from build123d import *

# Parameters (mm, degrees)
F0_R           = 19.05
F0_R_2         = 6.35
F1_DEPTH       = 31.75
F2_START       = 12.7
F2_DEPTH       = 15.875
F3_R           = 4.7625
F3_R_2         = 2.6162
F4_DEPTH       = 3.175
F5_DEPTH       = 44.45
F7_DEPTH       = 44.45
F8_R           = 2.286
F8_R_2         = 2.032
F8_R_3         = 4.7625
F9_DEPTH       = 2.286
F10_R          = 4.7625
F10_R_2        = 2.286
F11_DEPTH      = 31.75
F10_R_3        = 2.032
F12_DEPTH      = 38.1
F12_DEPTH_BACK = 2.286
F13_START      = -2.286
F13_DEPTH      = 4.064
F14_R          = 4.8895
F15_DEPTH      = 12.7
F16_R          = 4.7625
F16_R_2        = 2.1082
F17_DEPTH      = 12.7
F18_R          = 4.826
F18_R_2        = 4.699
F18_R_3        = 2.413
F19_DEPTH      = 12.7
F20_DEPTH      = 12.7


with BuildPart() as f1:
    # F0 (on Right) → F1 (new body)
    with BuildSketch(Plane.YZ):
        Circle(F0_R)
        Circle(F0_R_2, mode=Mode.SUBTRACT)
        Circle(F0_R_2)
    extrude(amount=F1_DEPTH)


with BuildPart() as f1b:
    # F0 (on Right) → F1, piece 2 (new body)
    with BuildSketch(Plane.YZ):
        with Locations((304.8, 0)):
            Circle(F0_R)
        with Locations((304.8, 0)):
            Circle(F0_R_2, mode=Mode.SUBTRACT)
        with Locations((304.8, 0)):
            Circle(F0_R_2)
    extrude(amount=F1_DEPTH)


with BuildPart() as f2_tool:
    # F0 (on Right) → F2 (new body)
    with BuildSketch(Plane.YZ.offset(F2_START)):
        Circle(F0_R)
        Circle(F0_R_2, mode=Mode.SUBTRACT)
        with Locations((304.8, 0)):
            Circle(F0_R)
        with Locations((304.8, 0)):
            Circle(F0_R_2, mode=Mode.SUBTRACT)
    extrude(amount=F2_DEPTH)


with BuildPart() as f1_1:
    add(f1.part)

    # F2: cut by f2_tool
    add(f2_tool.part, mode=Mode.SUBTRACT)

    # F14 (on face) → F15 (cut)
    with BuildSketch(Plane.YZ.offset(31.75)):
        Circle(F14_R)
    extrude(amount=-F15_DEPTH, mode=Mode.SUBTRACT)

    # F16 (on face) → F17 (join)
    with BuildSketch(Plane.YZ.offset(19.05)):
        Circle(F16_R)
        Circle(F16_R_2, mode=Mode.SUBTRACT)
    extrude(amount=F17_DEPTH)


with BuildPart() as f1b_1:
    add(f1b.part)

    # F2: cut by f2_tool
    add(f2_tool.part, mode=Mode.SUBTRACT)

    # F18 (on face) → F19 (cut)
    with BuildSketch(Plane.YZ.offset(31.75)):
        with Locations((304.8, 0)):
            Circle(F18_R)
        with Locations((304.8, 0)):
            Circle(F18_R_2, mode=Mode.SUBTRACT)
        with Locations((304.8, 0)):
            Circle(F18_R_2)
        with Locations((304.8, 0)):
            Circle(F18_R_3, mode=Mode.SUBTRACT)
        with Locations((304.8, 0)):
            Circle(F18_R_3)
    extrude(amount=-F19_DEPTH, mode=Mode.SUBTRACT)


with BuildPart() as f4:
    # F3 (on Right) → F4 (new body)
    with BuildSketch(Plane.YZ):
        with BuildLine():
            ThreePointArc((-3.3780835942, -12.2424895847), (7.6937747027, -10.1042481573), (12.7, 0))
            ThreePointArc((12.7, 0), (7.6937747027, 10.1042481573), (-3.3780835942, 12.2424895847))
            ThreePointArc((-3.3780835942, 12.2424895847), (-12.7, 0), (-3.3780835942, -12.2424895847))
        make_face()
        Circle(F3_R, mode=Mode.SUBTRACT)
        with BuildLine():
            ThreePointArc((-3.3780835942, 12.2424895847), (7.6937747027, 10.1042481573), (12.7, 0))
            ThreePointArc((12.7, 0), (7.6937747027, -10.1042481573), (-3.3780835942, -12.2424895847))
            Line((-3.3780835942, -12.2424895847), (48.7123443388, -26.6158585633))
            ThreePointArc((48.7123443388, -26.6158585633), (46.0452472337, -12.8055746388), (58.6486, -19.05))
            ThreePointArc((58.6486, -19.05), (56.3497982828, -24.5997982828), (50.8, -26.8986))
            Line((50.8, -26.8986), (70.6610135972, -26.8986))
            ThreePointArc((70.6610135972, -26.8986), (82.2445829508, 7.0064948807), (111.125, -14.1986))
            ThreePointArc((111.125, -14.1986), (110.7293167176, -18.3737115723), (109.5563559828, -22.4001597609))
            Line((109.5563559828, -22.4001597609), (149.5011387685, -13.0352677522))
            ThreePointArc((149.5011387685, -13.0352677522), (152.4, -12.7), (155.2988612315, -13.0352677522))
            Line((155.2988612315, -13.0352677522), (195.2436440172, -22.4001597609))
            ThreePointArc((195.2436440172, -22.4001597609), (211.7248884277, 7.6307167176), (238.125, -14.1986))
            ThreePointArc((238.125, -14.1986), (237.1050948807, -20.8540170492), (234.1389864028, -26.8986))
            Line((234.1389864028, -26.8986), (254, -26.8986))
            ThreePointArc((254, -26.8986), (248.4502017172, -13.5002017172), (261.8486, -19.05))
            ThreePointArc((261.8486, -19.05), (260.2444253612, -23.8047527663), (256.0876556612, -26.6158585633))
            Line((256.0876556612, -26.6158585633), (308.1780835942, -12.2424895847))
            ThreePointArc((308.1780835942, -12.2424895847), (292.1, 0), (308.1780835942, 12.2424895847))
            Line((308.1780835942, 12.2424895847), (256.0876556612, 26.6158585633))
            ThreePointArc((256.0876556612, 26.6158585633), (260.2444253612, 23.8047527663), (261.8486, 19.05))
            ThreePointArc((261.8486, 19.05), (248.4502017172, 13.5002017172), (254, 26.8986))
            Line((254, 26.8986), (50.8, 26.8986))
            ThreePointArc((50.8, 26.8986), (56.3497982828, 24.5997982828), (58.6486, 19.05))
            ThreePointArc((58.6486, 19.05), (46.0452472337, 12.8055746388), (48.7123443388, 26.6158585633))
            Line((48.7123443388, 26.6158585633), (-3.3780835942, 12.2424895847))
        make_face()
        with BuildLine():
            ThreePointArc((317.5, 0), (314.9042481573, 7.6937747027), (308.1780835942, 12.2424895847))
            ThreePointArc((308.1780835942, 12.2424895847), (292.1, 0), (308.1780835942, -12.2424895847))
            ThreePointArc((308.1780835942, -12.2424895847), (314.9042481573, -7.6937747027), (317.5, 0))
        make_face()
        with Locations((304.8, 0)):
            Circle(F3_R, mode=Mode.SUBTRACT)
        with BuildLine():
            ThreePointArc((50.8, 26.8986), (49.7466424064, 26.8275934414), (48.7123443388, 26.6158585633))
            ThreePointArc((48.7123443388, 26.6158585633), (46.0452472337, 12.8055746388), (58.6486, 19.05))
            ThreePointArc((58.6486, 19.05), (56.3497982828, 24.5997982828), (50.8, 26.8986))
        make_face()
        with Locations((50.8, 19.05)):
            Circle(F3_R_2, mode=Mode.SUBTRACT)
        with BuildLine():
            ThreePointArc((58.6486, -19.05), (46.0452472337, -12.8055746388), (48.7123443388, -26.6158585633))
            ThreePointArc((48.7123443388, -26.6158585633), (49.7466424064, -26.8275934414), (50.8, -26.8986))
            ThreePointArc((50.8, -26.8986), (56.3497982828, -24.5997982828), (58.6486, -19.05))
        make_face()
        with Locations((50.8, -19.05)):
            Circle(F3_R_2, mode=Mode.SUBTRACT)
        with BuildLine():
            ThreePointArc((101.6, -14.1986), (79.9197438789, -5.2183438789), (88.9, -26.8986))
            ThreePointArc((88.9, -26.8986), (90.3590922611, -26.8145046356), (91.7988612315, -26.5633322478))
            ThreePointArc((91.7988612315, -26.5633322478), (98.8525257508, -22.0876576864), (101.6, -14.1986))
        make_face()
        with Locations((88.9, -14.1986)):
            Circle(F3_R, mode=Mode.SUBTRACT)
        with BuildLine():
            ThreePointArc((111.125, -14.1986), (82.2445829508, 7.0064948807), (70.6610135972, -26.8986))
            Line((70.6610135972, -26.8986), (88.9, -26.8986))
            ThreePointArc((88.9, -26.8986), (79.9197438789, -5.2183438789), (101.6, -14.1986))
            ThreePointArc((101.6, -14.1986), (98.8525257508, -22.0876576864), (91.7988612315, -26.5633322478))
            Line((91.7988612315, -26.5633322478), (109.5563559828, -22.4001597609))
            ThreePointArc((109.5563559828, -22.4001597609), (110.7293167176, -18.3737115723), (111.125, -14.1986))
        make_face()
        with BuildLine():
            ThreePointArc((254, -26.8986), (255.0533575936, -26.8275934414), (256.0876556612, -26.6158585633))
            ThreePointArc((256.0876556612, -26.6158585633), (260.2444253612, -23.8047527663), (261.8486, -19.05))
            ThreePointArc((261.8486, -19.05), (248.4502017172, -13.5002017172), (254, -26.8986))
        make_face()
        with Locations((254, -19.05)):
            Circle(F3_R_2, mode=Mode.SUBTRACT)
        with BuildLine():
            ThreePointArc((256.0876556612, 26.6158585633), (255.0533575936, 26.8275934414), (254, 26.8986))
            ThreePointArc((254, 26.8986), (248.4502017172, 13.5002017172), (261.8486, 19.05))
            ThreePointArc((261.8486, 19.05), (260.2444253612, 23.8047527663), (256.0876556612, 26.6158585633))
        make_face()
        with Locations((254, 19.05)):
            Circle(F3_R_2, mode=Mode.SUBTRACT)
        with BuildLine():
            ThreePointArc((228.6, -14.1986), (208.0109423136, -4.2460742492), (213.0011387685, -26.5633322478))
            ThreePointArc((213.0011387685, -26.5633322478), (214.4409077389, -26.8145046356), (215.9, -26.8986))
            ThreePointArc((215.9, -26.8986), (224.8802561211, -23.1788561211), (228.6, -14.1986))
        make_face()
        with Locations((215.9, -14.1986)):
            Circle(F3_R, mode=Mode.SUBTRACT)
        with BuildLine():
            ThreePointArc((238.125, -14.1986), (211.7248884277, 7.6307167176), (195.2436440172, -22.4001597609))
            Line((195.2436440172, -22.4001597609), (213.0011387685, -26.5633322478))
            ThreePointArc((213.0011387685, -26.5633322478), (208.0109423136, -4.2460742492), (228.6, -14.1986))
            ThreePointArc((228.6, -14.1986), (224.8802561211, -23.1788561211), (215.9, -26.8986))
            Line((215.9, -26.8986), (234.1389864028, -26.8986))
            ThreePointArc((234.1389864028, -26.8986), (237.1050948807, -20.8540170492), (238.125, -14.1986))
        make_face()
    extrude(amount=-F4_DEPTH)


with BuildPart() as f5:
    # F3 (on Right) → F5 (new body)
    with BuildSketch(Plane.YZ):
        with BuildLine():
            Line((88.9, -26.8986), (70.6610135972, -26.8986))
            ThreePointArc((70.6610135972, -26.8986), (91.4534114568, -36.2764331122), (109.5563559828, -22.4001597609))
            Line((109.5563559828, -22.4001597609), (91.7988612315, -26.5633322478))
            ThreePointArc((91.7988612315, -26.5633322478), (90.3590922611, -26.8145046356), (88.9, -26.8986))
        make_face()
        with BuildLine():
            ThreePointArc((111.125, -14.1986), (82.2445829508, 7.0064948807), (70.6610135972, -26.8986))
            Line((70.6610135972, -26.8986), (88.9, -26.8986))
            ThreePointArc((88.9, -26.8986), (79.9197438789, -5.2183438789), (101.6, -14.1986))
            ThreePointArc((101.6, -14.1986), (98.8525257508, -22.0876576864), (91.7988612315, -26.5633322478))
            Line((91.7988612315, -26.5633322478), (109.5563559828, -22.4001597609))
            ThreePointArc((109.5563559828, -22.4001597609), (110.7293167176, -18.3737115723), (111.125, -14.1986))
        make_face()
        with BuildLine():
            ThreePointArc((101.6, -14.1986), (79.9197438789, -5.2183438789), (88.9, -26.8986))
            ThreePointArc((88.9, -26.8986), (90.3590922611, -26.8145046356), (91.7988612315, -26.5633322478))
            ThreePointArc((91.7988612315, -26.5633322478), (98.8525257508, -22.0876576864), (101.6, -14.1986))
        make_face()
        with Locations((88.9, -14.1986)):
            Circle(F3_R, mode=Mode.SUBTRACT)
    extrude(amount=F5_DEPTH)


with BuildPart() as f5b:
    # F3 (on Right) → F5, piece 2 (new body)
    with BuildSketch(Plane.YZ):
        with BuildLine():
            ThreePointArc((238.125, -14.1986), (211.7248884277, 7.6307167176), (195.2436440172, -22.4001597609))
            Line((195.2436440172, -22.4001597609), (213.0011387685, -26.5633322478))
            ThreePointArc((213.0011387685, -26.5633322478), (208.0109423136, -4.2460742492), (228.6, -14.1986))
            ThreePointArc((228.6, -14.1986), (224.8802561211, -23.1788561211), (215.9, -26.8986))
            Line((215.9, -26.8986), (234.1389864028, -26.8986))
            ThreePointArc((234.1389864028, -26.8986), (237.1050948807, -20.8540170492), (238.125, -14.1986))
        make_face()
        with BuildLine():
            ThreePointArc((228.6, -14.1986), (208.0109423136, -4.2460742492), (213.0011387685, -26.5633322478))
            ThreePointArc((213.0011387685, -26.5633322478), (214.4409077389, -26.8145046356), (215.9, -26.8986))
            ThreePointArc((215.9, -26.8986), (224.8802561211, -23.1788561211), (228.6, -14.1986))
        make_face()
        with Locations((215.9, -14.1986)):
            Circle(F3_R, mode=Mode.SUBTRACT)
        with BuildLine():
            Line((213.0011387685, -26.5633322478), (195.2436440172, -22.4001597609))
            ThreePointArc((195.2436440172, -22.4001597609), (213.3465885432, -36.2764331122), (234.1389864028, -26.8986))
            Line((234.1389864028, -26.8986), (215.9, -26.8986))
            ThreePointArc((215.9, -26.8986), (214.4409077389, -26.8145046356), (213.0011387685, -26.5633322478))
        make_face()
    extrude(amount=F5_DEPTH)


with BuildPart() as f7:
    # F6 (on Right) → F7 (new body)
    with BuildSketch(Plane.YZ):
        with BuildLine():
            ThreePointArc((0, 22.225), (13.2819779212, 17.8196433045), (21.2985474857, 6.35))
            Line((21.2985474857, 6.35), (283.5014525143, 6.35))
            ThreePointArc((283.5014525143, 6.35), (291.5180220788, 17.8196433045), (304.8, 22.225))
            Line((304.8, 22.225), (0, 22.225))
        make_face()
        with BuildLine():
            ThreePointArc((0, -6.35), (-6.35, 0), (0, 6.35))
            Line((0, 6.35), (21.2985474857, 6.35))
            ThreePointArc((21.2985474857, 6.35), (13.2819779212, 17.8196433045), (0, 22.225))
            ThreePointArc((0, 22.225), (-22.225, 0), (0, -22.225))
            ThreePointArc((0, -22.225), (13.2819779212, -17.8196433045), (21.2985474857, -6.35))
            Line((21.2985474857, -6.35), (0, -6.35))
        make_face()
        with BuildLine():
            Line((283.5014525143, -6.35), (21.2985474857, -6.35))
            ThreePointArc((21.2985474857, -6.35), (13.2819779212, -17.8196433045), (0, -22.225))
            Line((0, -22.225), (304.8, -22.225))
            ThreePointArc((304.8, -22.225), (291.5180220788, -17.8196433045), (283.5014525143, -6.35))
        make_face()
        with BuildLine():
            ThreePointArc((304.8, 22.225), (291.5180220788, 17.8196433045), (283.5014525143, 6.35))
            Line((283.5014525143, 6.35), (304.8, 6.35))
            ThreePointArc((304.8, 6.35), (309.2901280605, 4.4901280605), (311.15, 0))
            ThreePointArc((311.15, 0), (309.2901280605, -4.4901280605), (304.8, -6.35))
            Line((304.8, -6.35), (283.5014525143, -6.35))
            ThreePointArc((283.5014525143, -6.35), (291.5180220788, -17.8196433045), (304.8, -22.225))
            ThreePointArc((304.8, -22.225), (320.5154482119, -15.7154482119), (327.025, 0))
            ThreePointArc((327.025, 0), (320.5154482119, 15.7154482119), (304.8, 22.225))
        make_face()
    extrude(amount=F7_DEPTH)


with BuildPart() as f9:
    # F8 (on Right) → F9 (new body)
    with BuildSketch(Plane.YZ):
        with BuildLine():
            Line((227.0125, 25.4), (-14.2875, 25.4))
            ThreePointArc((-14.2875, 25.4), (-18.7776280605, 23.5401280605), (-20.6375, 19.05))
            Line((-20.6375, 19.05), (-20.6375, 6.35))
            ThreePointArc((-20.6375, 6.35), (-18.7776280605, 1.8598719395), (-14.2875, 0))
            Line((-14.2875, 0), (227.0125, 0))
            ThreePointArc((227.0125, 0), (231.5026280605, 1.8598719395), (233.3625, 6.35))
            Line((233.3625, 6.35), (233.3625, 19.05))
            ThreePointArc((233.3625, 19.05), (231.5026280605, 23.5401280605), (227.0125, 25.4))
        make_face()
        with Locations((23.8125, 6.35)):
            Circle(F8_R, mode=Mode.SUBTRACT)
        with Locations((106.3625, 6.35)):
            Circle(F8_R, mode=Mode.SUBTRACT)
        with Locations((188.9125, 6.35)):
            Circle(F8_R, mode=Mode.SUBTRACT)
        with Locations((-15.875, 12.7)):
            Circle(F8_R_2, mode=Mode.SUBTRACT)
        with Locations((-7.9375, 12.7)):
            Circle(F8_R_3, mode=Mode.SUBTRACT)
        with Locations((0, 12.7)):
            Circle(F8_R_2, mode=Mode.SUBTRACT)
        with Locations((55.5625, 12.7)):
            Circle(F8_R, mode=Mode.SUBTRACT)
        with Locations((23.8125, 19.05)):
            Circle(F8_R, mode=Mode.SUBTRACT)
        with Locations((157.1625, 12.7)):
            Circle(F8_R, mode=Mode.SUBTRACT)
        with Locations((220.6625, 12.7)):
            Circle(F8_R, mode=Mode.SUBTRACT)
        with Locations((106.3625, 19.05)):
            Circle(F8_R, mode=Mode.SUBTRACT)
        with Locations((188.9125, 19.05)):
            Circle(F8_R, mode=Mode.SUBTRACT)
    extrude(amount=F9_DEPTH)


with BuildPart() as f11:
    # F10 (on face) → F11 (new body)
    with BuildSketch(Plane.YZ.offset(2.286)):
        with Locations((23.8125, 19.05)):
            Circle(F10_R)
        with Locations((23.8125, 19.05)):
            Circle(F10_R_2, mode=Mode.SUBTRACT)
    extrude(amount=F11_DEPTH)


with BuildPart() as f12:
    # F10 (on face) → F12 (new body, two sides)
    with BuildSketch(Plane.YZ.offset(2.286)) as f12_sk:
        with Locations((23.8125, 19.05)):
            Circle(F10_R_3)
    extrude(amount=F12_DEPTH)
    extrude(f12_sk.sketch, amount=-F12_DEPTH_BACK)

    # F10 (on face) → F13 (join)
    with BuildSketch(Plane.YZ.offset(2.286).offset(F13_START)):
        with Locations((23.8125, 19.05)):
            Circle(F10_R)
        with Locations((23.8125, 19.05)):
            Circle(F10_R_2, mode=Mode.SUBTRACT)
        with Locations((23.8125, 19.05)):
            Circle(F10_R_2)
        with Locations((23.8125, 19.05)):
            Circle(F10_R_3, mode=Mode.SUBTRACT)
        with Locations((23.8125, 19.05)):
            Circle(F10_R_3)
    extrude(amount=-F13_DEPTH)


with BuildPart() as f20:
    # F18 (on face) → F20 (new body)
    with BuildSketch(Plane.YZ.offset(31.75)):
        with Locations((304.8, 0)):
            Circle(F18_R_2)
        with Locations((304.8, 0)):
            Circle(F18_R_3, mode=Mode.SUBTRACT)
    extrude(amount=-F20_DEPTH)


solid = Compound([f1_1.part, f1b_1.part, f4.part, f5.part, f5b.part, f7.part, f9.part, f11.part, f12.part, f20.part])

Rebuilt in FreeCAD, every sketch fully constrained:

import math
import FreeCAD as App
import Part
import Sketcher

V = App.Vector
Q = App.Units.Quantity

doc = App.newDocument("Part")
body = doc.addObject("PartDesign::Body", "Body")

# Sketch on YZ plane
sketch1 = body.newObject("Sketcher::SketchObject", "Sketch")
sketch1.AttachmentSupport = (doc.getObject("YZ_Plane"), [""])
sketch1.MapMode = "FlatFace"
sketch1.addGeometry(Part.Circle(V(0, 0, 0), V(0, 0, 1), 19), False)
sketch1.addConstraint([
    Sketcher.Constraint("Coincident", 0, 3, -1, 1),
    Sketcher.Constraint("Diameter", 0, Q("1.5 in")),
])
pad1 = body.newObject("PartDesign::Pad", "Pad")
pad1.Profile = sketch1
pad1.Length = Q("1.25 in")
body2 = doc.addObject("PartDesign::Body", "Body001")

# Sketch on YZ plane
sketch2 = body2.newObject("Sketcher::SketchObject", "Sketch001")
sketch2.AttachmentSupport = (doc.getObject("YZ_Plane001"), [""])
sketch2.MapMode = "FlatFace"
sketch2.addGeometry(Part.Circle(V(305, 0, 0), V(0, 0, 1), 19), False)
sketch2.addConstraint([
    Sketcher.Constraint("PointOnObject", 0, 3, -1),
    Sketcher.Constraint("Diameter", 0, Q("1.5 in")),
    Sketcher.Constraint("DistanceX", -1, 1, 0, 3, Q("12 in")),
])
pad2 = body2.newObject("PartDesign::Pad", "Pad001")
pad2.Profile = sketch2
pad2.Length = Q("1.25 in")
body3 = doc.addObject("PartDesign::Body", "Body002")
body3.AllowCompound = True

# Sketch on YZ plane
sketch3 = body3.newObject("Sketcher::SketchObject", "Sketch002")
sketch3.AttachmentSupport = (doc.getObject("YZ_Plane002"), [""])
sketch3.MapMode = "FlatFace"
sketch3.AttachmentOffset = App.Placement(V(0, 0, 0.5 * 25.4), App.Rotation())
sketch3.addGeometry([
    Part.Circle(V(0, 0, 0), V(0, 0, 1), 19),
    Part.Circle(V(0, 0, 0), V(0, 0, 1), 6),
    Part.Circle(V(305, 0, 0), V(0, 0, 1), 19),
    Part.Circle(V(305, 0, 0), V(0, 0, 1), 6),
], False)
sketch3.addConstraint([
    Sketcher.Constraint("Coincident", 0, 3, -1, 1),
    Sketcher.Constraint("Coincident", 1, 3, -1, 1),
    Sketcher.Constraint("Coincident", 3, 3, 2, 3),
    Sketcher.Constraint("Equal", 0, 2),
    Sketcher.Constraint("Equal", 1, 3),
    Sketcher.Constraint("PointOnObject", 2, 3, -1),
    Sketcher.Constraint("Diameter", 0, Q("1.5 in")),
    Sketcher.Constraint("Diameter", 1, Q("0.5 in")),
    Sketcher.Constraint("DistanceX", -1, 1, 2, 3, Q("12 in")),
])
pad3 = body3.newObject("PartDesign::Pad", "Pad002")
pad3.Profile = sketch3
pad3.Length = Q("0.625 in")
doc.recompute()

body4 = doc.addObject("PartDesign::Body", "Body003")
body4.BaseFeature = body3
boolean = body.newObject("PartDesign::Boolean", "Boolean")
boolean.Type = "Cut"
boolean.addObjects([body4])
doc.recompute()

# Sketch on YZ plane
sketch4 = body.newObject("Sketcher::SketchObject", "Sketch003")
sketch4.AttachmentSupport = (doc.getObject("YZ_Plane"), [""])
sketch4.MapMode = "FlatFace"
sketch4.AttachmentOffset = App.Placement(V(0, 0, 1.25 * 25.4), App.Rotation())
sketch4.addGeometry(Part.Circle(V(0, 0, 0), V(0, 0, 1), 4.9), False)
sketch4.addConstraint([
    Sketcher.Constraint("Coincident", 0, 3, -1, 1),
    Sketcher.Constraint("Diameter", 0, Q("0.385 in")),
])
pocket1 = body.newObject("PartDesign::Pocket", "Pocket")
pocket1.Profile = sketch4
pocket1.Length = Q("0.5 in")

# Sketch on YZ plane
sketch5 = body.newObject("Sketcher::SketchObject", "Sketch004")
sketch5.AttachmentSupport = (doc.getObject("YZ_Plane"), [""])
sketch5.MapMode = "FlatFace"
sketch5.AttachmentOffset = App.Placement(V(0, 0, 0.75 * 25.4), App.Rotation())
sketch5.addGeometry([
    Part.Circle(V(0, 0, 0), V(0, 0, 1), 4.8),
    Part.Circle(V(0, 0, 0), V(0, 0, 1), 2.1),
], False)
sketch5.addConstraint([
    Sketcher.Constraint("Coincident", 0, 3, -1, 1),
    Sketcher.Constraint("Coincident", 1, 3, -1, 1),
    Sketcher.Constraint("Diameter", 0, Q("0.375 in")),
    Sketcher.Constraint("Diameter", 1, Q("0.166 in")),
])
pad4 = body.newObject("PartDesign::Pad", "Pad003")
pad4.Profile = sketch5
pad4.Length = Q("0.5 in")
doc.recompute()

boolean2 = body2.newObject("PartDesign::Boolean", "Boolean001")
boolean2.Type = "Cut"
boolean2.addObjects([body3])

# Sketch on YZ plane
sketch6 = body2.newObject("Sketcher::SketchObject", "Sketch005")
sketch6.AttachmentSupport = (doc.getObject("YZ_Plane001"), [""])
sketch6.MapMode = "FlatFace"
sketch6.AttachmentOffset = App.Placement(V(0, 0, 1.25 * 25.4), App.Rotation())
sketch6.addGeometry(Part.Circle(V(304.8, 0, 0), V(0, 0, 1), 4.8), False)
sketch6.addConstraint([
    Sketcher.Constraint("PointOnObject", 0, 3, -1),
    Sketcher.Constraint("Diameter", 0, Q("0.38 in")),
    Sketcher.Constraint("DistanceX", -1, 1, 0, 3, Q("12 in")),
])
pocket2 = body2.newObject("PartDesign::Pocket", "Pocket001")
pocket2.Profile = sketch6
pocket2.Length = Q("0.5 in")
body5 = doc.addObject("PartDesign::Body", "Body004")

# Sketch on YZ plane
sketch7 = body5.newObject("Sketcher::SketchObject", "Sketch006")
sketch7.AttachmentSupport = (doc.getObject("YZ_Plane004"), [""])
sketch7.MapMode = "FlatFace"
sketch7.addGeometry([
    Part.ArcOfCircle(Part.Circle(V(0, 0, 0), V(0, 0, 1), 12.7), math.radians(105), math.radians(255)),  # 0
    Part.LineSegment(V(-3.4, -12.2, 0), V(48.7, -26.6, 0)),  # 1
    Part.ArcOfCircle(Part.Circle(V(50.8, -19.1, 0), V(0, 0, 1), 7.8), math.radians(-105.43), math.radians(-90)),  # 2
    Part.LineSegment(V(50.8, -26.9, 0), V(88.9, -26.9, 0)),  # 3
    Part.ArcOfCircle(Part.Circle(V(88.9, -14.2, 0), V(0, 0, 1), 12.7), math.radians(-90), math.radians(-76.81)),  # 4
    Part.LineSegment(V(91.8, -26.6, 0), V(109.6, -22.4, 0)),  # 5
    Part.LineSegment(V(109.6, -22.4, 0), V(149.5, -13, 0)),  # 6
    Part.ArcOfCircle(Part.Circle(V(152.4, -25.4, 0), V(0, 0, 1), 12.7), math.radians(77), math.radians(103)),  # 7
    Part.LineSegment(V(155.3, -13, 0), V(195.2, -22.4, 0)),  # 8
    Part.LineSegment(V(195.2, -22.4, 0), V(213, -26.6, 0)),  # 9
    Part.ArcOfCircle(Part.Circle(V(215.9, -14.2, 0), V(0, 0, 1), 12.7), math.radians(-103.19), math.radians(-90)),  # 10
    Part.LineSegment(V(215.9, -26.9, 0), V(254, -26.9, 0)),  # 11
    Part.ArcOfCircle(Part.Circle(V(254, -19, 0), V(0, 0, 1), 7.8), math.radians(-90), math.radians(-74.57)),  # 12
    Part.LineSegment(V(256.1, -26.6, 0), V(308.2, -12.2, 0)),  # 13
    Part.ArcOfCircle(Part.Circle(V(304.8, 0, 0), V(0, 0, 1), 12.7), math.radians(-75), math.radians(75)),  # 14
    Part.LineSegment(V(308.2, 12.2, 0), V(256.1, 26.6, 0)),  # 15
    Part.ArcOfCircle(Part.Circle(V(254, 19, 0), V(0, 0, 1), 7.8), math.radians(74.57), math.radians(90)),  # 16
    Part.LineSegment(V(254, 26.9, 0), V(50.8, 26.9, 0)),  # 17
    Part.ArcOfCircle(Part.Circle(V(50.8, 19, 0), V(0, 0, 1), 7.8), math.radians(90), math.radians(105.43)),  # 18
    Part.LineSegment(V(48.7, 26.6, 0), V(-3.4, 12.2, 0)),  # 19
    Part.Circle(V(50.8, -19.1, 0), V(0, 0, 1), 2.6),  # 20
    Part.Circle(V(88.9, -14.2, 0), V(0, 0, 1), 4.8),  # 21
    Part.Circle(V(0, 0, 0), V(0, 0, 1), 4.8),  # 22
    Part.Circle(V(254, -19.1, 0), V(0, 0, 1), 2.6),  # 23
    Part.Circle(V(304.8, 0, 0), V(0, 0, 1), 4.8),  # 24
    Part.Circle(V(50.8, 19.1, 0), V(0, 0, 1), 2.6),  # 25
    Part.Circle(V(254, 19.1, 0), V(0, 0, 1), 2.6),  # 26
    Part.Circle(V(215.9, -14.2, 0), V(0, 0, 1), 4.8),  # 27
], False)
sketch7.addConstraint([
    Sketcher.Constraint("Tangent", 0, 2, 1, 1),
    Sketcher.Constraint("Tangent", 1, 2, 2, 1),
    Sketcher.Constraint("Tangent", 2, 2, 3, 1),
    Sketcher.Constraint("Tangent", 3, 2, 4, 1),
    Sketcher.Constraint("Tangent", 4, 2, 5, 1),
    Sketcher.Constraint("Coincident", 5, 2, 6, 1),
    Sketcher.Constraint("Tangent", 6, 2, 7, 2),
    Sketcher.Constraint("Tangent", 7, 1, 8, 1),
    Sketcher.Constraint("Coincident", 8, 2, 9, 1),
    Sketcher.Constraint("Tangent", 9, 2, 10, 1),
    Sketcher.Constraint("Tangent", 10, 2, 11, 1),
    Sketcher.Constraint("Tangent", 11, 2, 12, 1),
    Sketcher.Constraint("Tangent", 12, 2, 13, 1),
    Sketcher.Constraint("Tangent", 13, 2, 14, 1),
    Sketcher.Constraint("Tangent", 14, 2, 15, 1),
    Sketcher.Constraint("Tangent", 15, 2, 16, 1),
    Sketcher.Constraint("Tangent", 16, 2, 17, 1),
    Sketcher.Constraint("Tangent", 17, 2, 18, 1),
    Sketcher.Constraint("Tangent", 18, 2, 19, 1),
    Sketcher.Constraint("Tangent", 19, 2, 0, 1),
    Sketcher.Constraint("Horizontal", 3),
    Sketcher.Constraint("Horizontal", 11),
    Sketcher.Constraint("Horizontal", 17),
    Sketcher.Constraint("Coincident", 0, 3, -1, 1),
    Sketcher.Constraint("Coincident", 22, 3, -1, 1),
    Sketcher.Constraint("Coincident", 20, 3, 2, 3),
    Sketcher.Constraint("Coincident", 21, 3, 4, 3),
    Sketcher.Constraint("Coincident", 23, 3, 12, 3),
    Sketcher.Constraint("Coincident", 24, 3, 14, 3),
    Sketcher.Constraint("Coincident", 25, 3, 18, 3),
    Sketcher.Constraint("Coincident", 26, 3, 16, 3),
    Sketcher.Constraint("Coincident", 27, 3, 10, 3),
    Sketcher.Constraint("Equal", 0, 4),
    Sketcher.Constraint("Equal", 4, 7),
    Sketcher.Constraint("Equal", 7, 10),
    Sketcher.Constraint("Equal", 2, 12),
    Sketcher.Constraint("Equal", 10, 14),
    Sketcher.Constraint("Equal", 12, 16),
    Sketcher.Constraint("Equal", 16, 18),
    Sketcher.Constraint("Equal", 21, 22),
    Sketcher.Constraint("Equal", 20, 23),
    Sketcher.Constraint("Equal", 22, 24),
    Sketcher.Constraint("Equal", 23, 25),
    Sketcher.Constraint("Equal", 25, 26),
    Sketcher.Constraint("Equal", 24, 27),
    Sketcher.Constraint("Symmetric", 12, 3, 16, 3, -1),
    Sketcher.Constraint("Symmetric", 2, 3, 18, 3, -1),
    Sketcher.Constraint("PointOnObject", 14, 3, -1),
    Sketcher.Constraint("Parallel", 5, 6),
    Sketcher.Constraint("Parallel", 8, 9),
    Sketcher.Constraint("Parallel", 1, 15),
    Sketcher.Constraint("Horizontal", 6, 2, 7, 1),
    Sketcher.Constraint("Horizontal", 5, 2, 8, 2),
    Sketcher.Constraint("Equal", 3, 11),
    Sketcher.Constraint("Radius", 0, Q("0.5 in")),
    Sketcher.Constraint("DistanceX", 17, 2, 17, 1, Q("8 in")),
    Sketcher.Constraint("Diameter", 20, Q("0.206 in")),
    Sketcher.Constraint("Diameter", 21, Q("0.375 in")),
    Sketcher.Constraint("DistanceX", 3, 1, 3, 2, Q("1.5 in")),
    Sketcher.Constraint("DistanceX", -1, 1, 2, 3, Q("2 in")),
    Sketcher.Constraint("DistanceY", 7, 3, -1, 1, Q("1 in")),
    Sketcher.Constraint("Radius", 2, Q("0.309 in")),
    Sketcher.Constraint("DistanceY", 12, 3, 16, 3, Q("1.5 in")),
    Sketcher.Constraint("Distance", 6, Q("41.027879 mm")),
])
pad5 = body5.newObject("PartDesign::Pad", "Pad004")
pad5.Profile = sketch7
pad5.Length = Q("0.125 in")
pad5.Reversed = True
body6 = doc.addObject("PartDesign::Body", "Body005")

# Sketch on YZ plane
sketch8 = body6.newObject("Sketcher::SketchObject", "Sketch007")
sketch8.AttachmentSupport = (doc.getObject("YZ_Plane005"), [""])
sketch8.MapMode = "FlatFace"
sketch8.addGeometry([
    Part.ArcOfCircle(Part.Circle(V(88.9, -14.2, 0), V(0, 0, 1), 22.2), math.radians(-145), math.radians(-22)),
    Part.ArcOfCircle(Part.Circle(V(88.9, -14.2, 0), V(0, 0, 1), 22.2), math.radians(-22), math.radians(0)),
    Part.ArcOfCircle(Part.Circle(V(88.9, -14.2, 0), V(0, 0, 1), 22.2), math.radians(0), math.radians(215)),
    Part.Circle(V(88.9, -14.2, 0), V(0, 0, 1), 4.8),
], False)
sketch8.addConstraint([
    Sketcher.Constraint("Tangent", 0, 2, 1, 1),
    Sketcher.Constraint("Tangent", 1, 2, 2, 1),
    Sketcher.Constraint("Tangent", 2, 2, 0, 1),
    Sketcher.Constraint("Coincident", 3, 3, 0, 3),
    Sketcher.Constraint("Horizontal", 3, 3, 1, 2),
    Sketcher.Constraint("Diameter", 3, Q("0.375 in")),
    Sketcher.Constraint("Radius", 0, Q("0.875 in")),
    Sketcher.Constraint("DistanceX", -1, 1, 0, 3, Q("3.5 in")),
    Sketcher.Constraint("DistanceY", 2, 2, 1, 3, Q("0.5 in")),
    Sketcher.Constraint("DistanceY", 0, 3, -1, 1, Q("0.559 in")),
    Sketcher.Constraint("DistanceY", 0, 2, -1, 1, Q("22.40016 mm")),
])
pad6 = body6.newObject("PartDesign::Pad", "Pad005")
pad6.Profile = sketch8
pad6.Length = Q("1.75 in")
body7 = doc.addObject("PartDesign::Body", "Body006")

# Sketch on YZ plane
sketch9 = body7.newObject("Sketcher::SketchObject", "Sketch008")
sketch9.AttachmentSupport = (doc.getObject("YZ_Plane006"), [""])
sketch9.MapMode = "FlatFace"
sketch9.addGeometry([
    Part.ArcOfCircle(Part.Circle(V(215.9, -14.2, 0), V(0, 0, 1), 22.2), math.radians(0), math.radians(202)),
    Part.ArcOfCircle(Part.Circle(V(215.9, -14.2, 0), V(0, 0, 1), 22.2), math.radians(-158), math.radians(-35)),
    Part.ArcOfCircle(Part.Circle(V(215.9, -14.2, 0), V(0, 0, 1), 22.2), math.radians(-35), math.radians(0)),
    Part.Circle(V(215.9, -14.2, 0), V(0, 0, 1), 4.8),
], False)
sketch9.addConstraint([
    Sketcher.Constraint("Tangent", 0, 2, 1, 1),
    Sketcher.Constraint("Tangent", 1, 2, 2, 1),
    Sketcher.Constraint("Tangent", 2, 2, 0, 1),
    Sketcher.Constraint("Coincident", 3, 3, 0, 3),
    Sketcher.Constraint("Horizontal", 3, 3, 2, 2),
    Sketcher.Constraint("Diameter", 3, Q("0.375 in")),
    Sketcher.Constraint("Radius", 0, Q("0.875 in")),
    Sketcher.Constraint("DistanceX", -1, 1, 0, 3, Q("8.5 in")),
    Sketcher.Constraint("DistanceY", 1, 2, 0, 3, Q("0.5 in")),
    Sketcher.Constraint("DistanceY", 0, 3, -1, 1, Q("0.559 in")),
    Sketcher.Constraint("DistanceY", 0, 2, -1, 1, Q("22.40016 mm")),
])
pad7 = body7.newObject("PartDesign::Pad", "Pad006")
pad7.Profile = sketch9
pad7.Length = Q("1.75 in")
body8 = doc.addObject("PartDesign::Body", "Body007")

# Sketch on YZ plane
sketch10 = body8.newObject("Sketcher::SketchObject", "Sketch009")
sketch10.AttachmentSupport = (doc.getObject("YZ_Plane007"), [""])
sketch10.MapMode = "FlatFace"
sketch10.addGeometry([
    Part.LineSegment(V(305, 22, 0), V(0, 22, 0)),  # 0
    Part.ArcOfCircle(Part.Circle(V(0, 0, 0), V(0, 0, 1), 22), math.radians(90), math.radians(270)),  # 1
    Part.LineSegment(V(0, -22, 0), V(305, -22, 0)),  # 2
    Part.ArcOfCircle(Part.Circle(V(305, 0, 0), V(0, 0, 1), 22), math.radians(-90), math.radians(0)),  # 3
    Part.ArcOfCircle(Part.Circle(V(305, 0, 0), V(0, 0, 1), 22), math.radians(0), math.radians(90)),  # 4
    Part.ArcOfCircle(Part.Circle(V(0, 0, 0), V(0, 0, 1), 6), math.radians(90), math.radians(270)),  # 5
    Part.LineSegment(V(0, 6, 0), V(305, 6, 0)),  # 6
    Part.ArcOfCircle(Part.Circle(V(305, 0, 0), V(0, 0, 1), 6), math.radians(0), math.radians(90)),  # 7
    Part.ArcOfCircle(Part.Circle(V(305, 0, 0), V(0, 0, 1), 6), math.radians(-90), math.radians(0)),  # 8
    Part.LineSegment(V(305, -6, 0), V(0, -6, 0)),  # 9
], False)
sketch10.addConstraint([
    Sketcher.Constraint("Tangent", 0, 2, 1, 1),
    Sketcher.Constraint("Tangent", 1, 2, 2, 1),
    Sketcher.Constraint("Tangent", 2, 2, 3, 1),
    Sketcher.Constraint("Tangent", 3, 2, 4, 1),
    Sketcher.Constraint("Tangent", 4, 2, 0, 1),
    Sketcher.Constraint("Tangent", 5, 1, 6, 1),
    Sketcher.Constraint("Tangent", 6, 2, 7, 2),
    Sketcher.Constraint("Tangent", 7, 1, 8, 2),
    Sketcher.Constraint("Tangent", 8, 1, 9, 1),
    Sketcher.Constraint("Tangent", 9, 2, 5, 2),
    Sketcher.Constraint("Horizontal", 0),
    Sketcher.Constraint("Horizontal", 2),
    Sketcher.Constraint("Horizontal", 6),
    Sketcher.Constraint("Horizontal", 9),
    Sketcher.Constraint("Coincident", 1, 3, -1, 1),
    Sketcher.Constraint("Coincident", 5, 3, -1, 1),
    Sketcher.Constraint("Coincident", 7, 3, 3, 3),
    Sketcher.Constraint("Equal", 1, 3),
    Sketcher.Constraint("PointOnObject", 3, 2, -1),
    Sketcher.Constraint("PointOnObject", 7, 1, -1),
    Sketcher.Constraint("DistanceX", 0, 2, 0, 1, Q("12 in")),
    Sketcher.Constraint("Radius", 5, Q("0.25 in")),
    Sketcher.Constraint("Radius", 1, Q("0.875 in")),
])
pad8 = body8.newObject("PartDesign::Pad", "Pad007")
pad8.Profile = sketch10
pad8.Length = Q("1.75 in")
body9 = doc.addObject("PartDesign::Body", "Body008")

# Sketch on YZ plane
sketch11 = body9.newObject("Sketcher::SketchObject", "Sketch010")
sketch11.AttachmentSupport = (doc.getObject("YZ_Plane008"), [""])
sketch11.MapMode = "FlatFace"
sketch11.addGeometry([
    Part.LineSegment(V(227, 25.4, 0), V(-14.3, 25.4, 0)),  # 0
    Part.ArcOfCircle(Part.Circle(V(-14.3, 19.1, 0), V(0, 0, 1), 6.3), math.radians(90), math.radians(180)),  # 1
    Part.LineSegment(V(-20.6, 19.1, 0), V(-20.6, 6.3, 0)),  # 2
    Part.ArcOfCircle(Part.Circle(V(-14.3, 6.3, 0), V(0, 0, 1), 6.3), math.radians(180), math.radians(270)),  # 3
    Part.LineSegment(V(-14.3, 0, 0), V(227, 0, 0)),  # 4
    Part.ArcOfCircle(Part.Circle(V(227, 6.3, 0), V(0, 0, 1), 6.3), math.radians(-90), math.radians(0)),  # 5
    Part.LineSegment(V(233.4, 6.3, 0), V(233.4, 19.1, 0)),  # 6
    Part.ArcOfCircle(Part.Circle(V(227, 19.1, 0), V(0, 0, 1), 6.3), math.radians(0), math.radians(90)),  # 7
    Part.Circle(V(23.8, 6.3, 0), V(0, 0, 1), 2.3),  # 8
    Part.Circle(V(-15.9, 12.7, 0), V(0, 0, 1), 2),  # 9
    Part.Circle(V(-7.9, 12.7, 0), V(0, 0, 1), 4.8),  # 10
    Part.Circle(V(0, 12.7, 0), V(0, 0, 1), 2),  # 11
    Part.Circle(V(55.6, 12.7, 0), V(0, 0, 1), 2.3),  # 12
    Part.Circle(V(106.4, 6.3, 0), V(0, 0, 1), 2.3),  # 13
    Part.Circle(V(188.9, 6.3, 0), V(0, 0, 1), 2.3),  # 14
    Part.Circle(V(157.2, 12.7, 0), V(0, 0, 1), 2.3),  # 15
    Part.Circle(V(220.7, 12.7, 0), V(0, 0, 1), 2.3),  # 16
    Part.Circle(V(23.8, 19.1, 0), V(0, 0, 1), 2.3),  # 17
    Part.Circle(V(106.4, 19.1, 0), V(0, 0, 1), 2.3),  # 18
    Part.Circle(V(188.9, 19.1, 0), V(0, 0, 1), 2.3),  # 19
], False)
sketch11.addConstraint([
    Sketcher.Constraint("Tangent", 0, 2, 1, 1),
    Sketcher.Constraint("Tangent", 1, 2, 2, 1),
    Sketcher.Constraint("Tangent", 2, 2, 3, 1),
    Sketcher.Constraint("Tangent", 3, 2, 4, 1),
    Sketcher.Constraint("Tangent", 4, 2, 5, 1),
    Sketcher.Constraint("Tangent", 5, 2, 6, 1),
    Sketcher.Constraint("Tangent", 6, 2, 7, 1),
    Sketcher.Constraint("Tangent", 7, 2, 0, 1),
    Sketcher.Constraint("Horizontal", 0),
    Sketcher.Constraint("Vertical", 2),
    Sketcher.Constraint("Horizontal", 4),
    Sketcher.Constraint("Vertical", 6),
    Sketcher.Constraint("Equal", 1, 3),
    Sketcher.Constraint("Equal", 3, 5),
    Sketcher.Constraint("Equal", 5, 7),
    Sketcher.Constraint("Equal", 9, 11),
    Sketcher.Constraint("Equal", 8, 12),
    Sketcher.Constraint("Equal", 12, 13),
    Sketcher.Constraint("Equal", 13, 14),
    Sketcher.Constraint("Equal", 14, 15),
    Sketcher.Constraint("Equal", 15, 16),
    Sketcher.Constraint("Equal", 16, 17),
    Sketcher.Constraint("Equal", 17, 18),
    Sketcher.Constraint("Equal", 18, 19),
    Sketcher.Constraint("PointOnObject", 11, 3, -2),
    Sketcher.Constraint("PointOnObject", 3, 2, -1),
    Sketcher.Constraint("Horizontal", 5, 3, 8, 3),
    Sketcher.Constraint("Horizontal", 9, 3, 10, 3),
    Sketcher.Constraint("Horizontal", 10, 3, 11, 3),
    Sketcher.Constraint("Horizontal", 11, 3, 12, 3),
    Sketcher.Constraint("Horizontal", 8, 3, 13, 3),
    Sketcher.Constraint("Horizontal", 13, 3, 14, 3),
    Sketcher.Constraint("Horizontal", 12, 3, 15, 3),
    Sketcher.Constraint("Horizontal", 15, 3, 16, 3),
    Sketcher.Constraint("Horizontal", 7, 3, 17, 3),
    Sketcher.Constraint("Horizontal", 17, 3, 18, 3),
    Sketcher.Constraint("Horizontal", 18, 3, 19, 3),
    Sketcher.Constraint("Vertical", 8, 3, 17, 3),
    Sketcher.Constraint("Vertical", 13, 3, 18, 3),
    Sketcher.Constraint("Vertical", 14, 3, 19, 3),
    Sketcher.Constraint("Diameter", 8, Q("0.18 in")),
    Sketcher.Constraint("Diameter", 9, Q("0.16 in")),
    Sketcher.Constraint("Radius", 1, Q("0.25 in")),
    Sketcher.Constraint("Diameter", 10, Q("0.375 in")),
    Sketcher.Constraint("DistanceX", 0, 2, 0, 1, Q("9.5 in")),
    Sketcher.Constraint("DistanceY", 2, 2, 2, 1, Q("0.5 in")),
    Sketcher.Constraint("DistanceX", 8, 3, 5, 3, Q("8 in")),
    Sketcher.Constraint("DistanceX", 12, 3, 13, 3, Q("2 in")),
    Sketcher.Constraint("DistanceX", 13, 3, 15, 3, Q("2 in")),
    Sketcher.Constraint("DistanceY", -1, 1, 9, 3, Q("0.5 in")),
    Sketcher.Constraint("DistanceX", 10, 3, 12, 3, Q("2.5 in")),
    Sketcher.Constraint("DistanceX", 14, 3, 5, 3, Q("1.5 in")),
    Sketcher.Constraint("DistanceX", 15, 3, 16, 3, Q("2.5 in")),
    Sketcher.Constraint("DistanceX", 1, 2, 10, 3, Q("0.5 in")),
    Sketcher.Constraint("DistanceX", 1, 3, -1, 1, Q("0.5625 in")),
    Sketcher.Constraint("DistanceX", 9, 3, -1, 1, Q("0.625 in")),
])
pad9 = body9.newObject("PartDesign::Pad", "Pad008")
pad9.Profile = sketch11
pad9.Length = Q("0.09 in")
body10 = doc.addObject("PartDesign::Body", "Body009")

# Sketch on YZ plane
sketch12 = body10.newObject("Sketcher::SketchObject", "Sketch011")
sketch12.AttachmentSupport = (doc.getObject("YZ_Plane009"), [""])
sketch12.MapMode = "FlatFace"
sketch12.AttachmentOffset = App.Placement(V(0, 0, 0.09 * 25.4), App.Rotation())
sketch12.addGeometry([
    Part.Circle(V(23.8, 19.1, 0), V(0, 0, 1), 4.8),
    Part.Circle(V(23.8, 19.1, 0), V(0, 0, 1), 2.3),
], False)
sketch12.addConstraint([
    Sketcher.Constraint("Coincident", 1, 3, 0, 3),
    Sketcher.Constraint("Diameter", 1, Q("0.18 in")),
    Sketcher.Constraint("Diameter", 0, Q("0.375 in")),
    Sketcher.Constraint("DistanceY", -1, 1, 0, 3, Q("0.75 in")),
    Sketcher.Constraint("DistanceX", -1, 1, 0, 3, Q("0.9375 in")),
])
pad10 = body10.newObject("PartDesign::Pad", "Pad009")
pad10.Profile = sketch12
pad10.Length = Q("1.25 in")
body11 = doc.addObject("PartDesign::Body", "Body010")

# Sketch on YZ plane
sketch13 = body11.newObject("Sketcher::SketchObject", "Sketch012")
sketch13.AttachmentSupport = (doc.getObject("YZ_Plane010"), [""])
sketch13.MapMode = "FlatFace"
sketch13.AttachmentOffset = App.Placement(V(0, 0, 0.09 * 25.4), App.Rotation())
sketch13.addGeometry(Part.Circle(V(23.8, 19.1, 0), V(0, 0, 1), 2), False)
sketch13.addConstraint([
    Sketcher.Constraint("Diameter", 0, Q("0.16 in")),
    Sketcher.Constraint("DistanceY", -1, 1, 0, 3, Q("0.75 in")),
    Sketcher.Constraint("DistanceX", -1, 1, 0, 3, Q("0.9375 in")),
])
pad11 = body11.newObject("PartDesign::Pad", "Pad010")
pad11.Profile = sketch13
pad11.Type = "TwoLengths"
pad11.Length = Q("1.5 in")
pad11.Length2 = Q("0.09 in")

# Sketch on YZ plane
sketch14 = body11.newObject("Sketcher::SketchObject", "Sketch013")
sketch14.AttachmentSupport = (doc.getObject("YZ_Plane010"), [""])
sketch14.MapMode = "FlatFace"
sketch14.addGeometry(Part.Circle(V(23.8, 19.1, 0), V(0, 0, 1), 4.8), False)
sketch14.addConstraint([
    Sketcher.Constraint("Diameter", 0, Q("0.375 in")),
    Sketcher.Constraint("DistanceY", -1, 1, 0, 3, Q("0.75 in")),
    Sketcher.Constraint("DistanceX", -1, 1, 0, 3, Q("0.9375 in")),
])
pad12 = body11.newObject("PartDesign::Pad", "Pad011")
pad12.Profile = sketch14
pad12.Length = Q("0.16 in")
pad12.Reversed = True
body12 = doc.addObject("PartDesign::Body", "Body011")

# Sketch on YZ plane
sketch15 = body12.newObject("Sketcher::SketchObject", "Sketch014")
sketch15.AttachmentSupport = (doc.getObject("YZ_Plane011"), [""])
sketch15.MapMode = "FlatFace"
sketch15.AttachmentOffset = App.Placement(V(0, 0, 1.25 * 25.4), App.Rotation())
sketch15.addGeometry([
    Part.Circle(V(304.8, 0, 0), V(0, 0, 1), 4.7),
    Part.Circle(V(304.8, 0, 0), V(0, 0, 1), 2.4),
], False)
sketch15.addConstraint([
    Sketcher.Constraint("Coincident", 1, 3, 0, 3),
    Sketcher.Constraint("PointOnObject", 0, 3, -1),
    Sketcher.Constraint("Diameter", 0, Q("0.37 in")),
    Sketcher.Constraint("Diameter", 1, Q("0.19 in")),
    Sketcher.Constraint("DistanceX", -1, 1, 0, 3, Q("12 in")),
])
pad13 = body12.newObject("PartDesign::Pad", "Pad012")
pad13.Profile = sketch15
pad13.Length = Q("0.5 in")
pad13.Reversed = True

doc.recompute()
